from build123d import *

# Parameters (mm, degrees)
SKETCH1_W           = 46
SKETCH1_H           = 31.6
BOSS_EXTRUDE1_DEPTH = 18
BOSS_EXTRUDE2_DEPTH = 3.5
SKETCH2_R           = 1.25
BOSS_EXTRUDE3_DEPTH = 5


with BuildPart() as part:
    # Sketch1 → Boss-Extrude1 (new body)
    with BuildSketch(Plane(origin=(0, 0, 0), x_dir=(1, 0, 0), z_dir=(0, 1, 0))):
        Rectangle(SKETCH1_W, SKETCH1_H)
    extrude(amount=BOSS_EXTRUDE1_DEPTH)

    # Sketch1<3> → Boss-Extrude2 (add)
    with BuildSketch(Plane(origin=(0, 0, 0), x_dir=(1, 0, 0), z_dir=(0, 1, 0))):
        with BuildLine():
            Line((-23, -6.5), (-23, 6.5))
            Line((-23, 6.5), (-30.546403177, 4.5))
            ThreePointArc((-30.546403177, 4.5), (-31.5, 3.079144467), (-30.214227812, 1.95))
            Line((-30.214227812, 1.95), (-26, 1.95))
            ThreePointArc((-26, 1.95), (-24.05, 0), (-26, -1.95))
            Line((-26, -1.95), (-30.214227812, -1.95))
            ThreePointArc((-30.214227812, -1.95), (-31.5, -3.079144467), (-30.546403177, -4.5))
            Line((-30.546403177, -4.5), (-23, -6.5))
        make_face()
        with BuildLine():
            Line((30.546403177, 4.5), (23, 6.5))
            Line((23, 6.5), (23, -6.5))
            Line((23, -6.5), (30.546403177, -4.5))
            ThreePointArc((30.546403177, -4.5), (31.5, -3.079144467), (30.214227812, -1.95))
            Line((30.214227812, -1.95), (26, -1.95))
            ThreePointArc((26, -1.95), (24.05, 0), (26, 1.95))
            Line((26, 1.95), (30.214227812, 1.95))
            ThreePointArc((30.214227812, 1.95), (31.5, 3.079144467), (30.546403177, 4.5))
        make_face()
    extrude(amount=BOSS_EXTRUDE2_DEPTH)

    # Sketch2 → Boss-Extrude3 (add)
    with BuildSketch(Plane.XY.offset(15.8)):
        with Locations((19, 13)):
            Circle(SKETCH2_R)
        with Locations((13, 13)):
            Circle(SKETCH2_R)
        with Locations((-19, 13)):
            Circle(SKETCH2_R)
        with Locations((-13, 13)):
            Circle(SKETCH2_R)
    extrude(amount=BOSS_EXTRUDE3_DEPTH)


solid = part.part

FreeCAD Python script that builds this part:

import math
import FreeCAD as App
import Part
import Sketcher
from FreeCAD import Vector


def add_polygon(sketch, points):
    """Adds a closed chain of lines whose ends are joined by coincident constraints."""
    first, n = sketch.GeometryCount, len(points)
    for a, b in zip(points, points[1:] + points[:1]):
        sketch.addGeometry(Part.LineSegment(App.Vector(*a, 0), App.Vector(*b, 0)), False)
    for i in range(n):
        sketch.addConstraint(Sketcher.Constraint("Coincident", first + i, 2, first + (i + 1) % n, 1))

doc = App.newDocument("Part")
body = doc.addObject("PartDesign::Body", "Body")

sketch1 = body.newObject("Sketcher::SketchObject", "Sketch")
sketch1.AttachmentSupport = (doc.getObject("XZ_Plane"), [""])
sketch1.MapMode = "FlatFace"
add_polygon(sketch1, [(-23, -16), (-23, 16), (23, 16), (23, -16)])
sketch1.addConstraint(Sketcher.Constraint("Vertical", 0))
sketch1.addConstraint(Sketcher.Constraint("Horizontal", 1))
sketch1.addConstraint(Sketcher.Constraint("Vertical", 2))
sketch1.addConstraint(Sketcher.Constraint("Horizontal", 3))
sketch1.addConstraint(Sketcher.Constraint("Symmetric", 0, 2, 2, 2, -1, 1))
sketch1.addConstraint(Sketcher.Constraint("DistanceX", 1, 1, 1, 2, 46.0))
sketch1.addConstraint(Sketcher.Constraint("DistanceY", 0, 1, 0, 2, 31.6))
pad1 = body.newObject("PartDesign::Pad", "Pad")
pad1.Profile = sketch1
pad1.Length = 18
pad1.Reversed = True

sketch2 = body.newObject("Sketcher::SketchObject", "Sketch001")
sketch2.AttachmentSupport = (doc.getObject("XZ_Plane"), [""])
sketch2.MapMode = "FlatFace"
sketch2.addGeometry(Part.LineSegment(Vector(-23, 6.5, 0), Vector(-23, -6.5, 0)), False)
sketch2.addGeometry(Part.LineSegment(Vector(-23, -6.5, 0), Vector(-30.5, -4.5, 0)), False)
sketch2.addGeometry(Part.ArcOfCircle(Part.Circle(Vector(-30.2, -3.2, 0), Vector(0, 0, 1), 1.3), math.radians(90), math.radians(255)), False)
sketch2.addGeometry(Part.LineSegment(Vector(-30.2, -1.9, 0), Vector(-26, -1.9, 0)), False)
sketch2.addGeometry(Part.ArcOfCircle(Part.Circle(Vector(-26, 0, 0), Vector(0, 0, 1), 1.9), math.radians(-90), math.radians(90)), False)
sketch2.addGeometry(Part.LineSegment(Vector(-26, 1.9, 0), Vector(-30.2, 1.9, 0)), False)
sketch2.addGeometry(Part.ArcOfCircle(Part.Circle(Vector(-30.2, 3.2, 0), Vector(0, 0, 1), 1.3), math.radians(105), math.radians(270)), False)
sketch2.addGeometry(Part.LineSegment(Vector(-30.5, 4.5, 0), Vector(-23, 6.5, 0)), False)
sketch2.addGeometry(Part.LineSegment(Vector(30.5, -4.5, 0), Vector(23, -6.5, 0)), False)
sketch2.addGeometry(Part.LineSegment(Vector(23, -6.5, 0), Vector(23, 6.5, 0)), False)
sketch2.addGeometry(Part.LineSegment(Vector(23, 6.5, 0), Vector(30.5, 4.5, 0)), False)
sketch2.addGeometry(Part.ArcOfCircle(Part.Circle(Vector(30.2, 3.2, 0), Vector(0, 0, 1), 1.3), math.radians(-90), math.radians(75)), False)
sketch2.addGeometry(Part.LineSegment(Vector(30.2, 1.9, 0), Vector(26, 1.9, 0)), False)
sketch2.addGeometry(Part.ArcOfCircle(Part.Circle(Vector(26, 0, 0), Vector(0, 0, 1), 1.9), math.radians(90), math.radians(270)), False)
sketch2.addGeometry(Part.LineSegment(Vector(26, -1.9, 0), Vector(30.2, -1.9, 0)), False)
sketch2.addGeometry(Part.ArcOfCircle(Part.Circle(Vector(30.2, -3.2, 0), Vector(0, 0, 1), 1.3), math.radians(-75), math.radians(90)), False)
sketch2.addConstraint(Sketcher.Constraint("Coincident", 0, 2, 1, 1))
sketch2.addConstraint(Sketcher.Constraint("Tangent", 1, 2, 2, 2))
sketch2.addConstraint(Sketcher.Constraint("Tangent", 2, 1, 3, 1))
sketch2.addConstraint(Sketcher.Constraint("Tangent", 3, 2, 4, 1))
sketch2.addConstraint(Sketcher.Constraint("Tangent", 4, 2, 5, 1))
sketch2.addConstraint(Sketcher.Constraint("Tangent", 5, 2, 6, 2))
sketch2.addConstraint(Sketcher.Constraint("Tangent", 6, 1, 7, 1))
sketch2.addConstraint(Sketcher.Constraint("Coincident", 7, 2, 0, 1))
sketch2.addConstraint(Sketcher.Constraint("Coincident", 8, 2, 9, 1))
sketch2.addConstraint(Sketcher.Constraint("Coincident", 9, 2, 10, 1))
sketch2.addConstraint(Sketcher.Constraint("Tangent", 10, 2, 11, 2))
sketch2.addConstraint(Sketcher.Constraint("Tangent", 11, 1, 12, 1))
sketch2.addConstraint(Sketcher.Constraint("Tangent", 12, 2, 13, 1))
sketch2.addConstraint(Sketcher.Constraint("Tangent", 13, 2, 14, 1))
sketch2.addConstraint(Sketcher.Constraint("Tangent", 14, 2, 15, 2))
sketch2.addConstraint(Sketcher.Constraint("Tangent", 15, 1, 8, 1))
sketch2.addConstraint(Sketcher.Constraint("Vertical", 0))
sketch2.addConstraint(Sketcher.Constraint("Horizontal", 3))
sketch2.addConstraint(Sketcher.Constraint("Horizontal", 5))
sketch2.addConstraint(Sketcher.Constraint("Vertical", 9))
sketch2.addConstraint(Sketcher.Constraint("Horizontal", 12))
sketch2.addConstraint(Sketcher.Constraint("Horizontal", 14))
sketch2.addConstraint(Sketcher.Constraint("Equal", 2, 6))
sketch2.addConstraint(Sketcher.Constraint("Equal", 6, 11))
sketch2.addConstraint(Sketcher.Constraint("Equal", 4, 13))
sketch2.addConstraint(Sketcher.Constraint("Equal", 11, 15))
sketch2.addConstraint(Sketcher.Constraint("Symmetric", 2, 3, 11, 3, -1, 1))
sketch2.addConstraint(Sketcher.Constraint("Symmetric", 7, 2, 8, 2, -1, 1))
sketch2.addConstraint(Sketcher.Constraint("Symmetric", 6, 3, 11, 3, -2))
sketch2.addConstraint(Sketcher.Constraint("Symmetric", 1, 2, 15, 1, -2))
sketch2.addConstraint(Sketcher.Constraint("Parallel", 1, 10))
sketch2.addConstraint(Sketcher.Constraint("Equal", 5, 12))
sketch2.addConstraint(Sketcher.Constraint("DistanceY", 0, 2, 0, 1, 13.0))
sketch2.addConstraint(Sketcher.Constraint("Radius", 4, 1.95))
sketch2.addConstraint(Sketcher.Constraint("DistanceX", 4, 3, -1, 1, 26.0))
sketch2.addConstraint(Sketcher.Constraint("DistanceX", 0, 2, -1, 1, 23.0))
sketch2.addConstraint(Sketcher.Constraint("DistanceY", 0, 2, 1, 2, 2.0))
sketch2.addConstraint(Sketcher.Constraint("DistanceX", 3, 1, 3, 2, 4.214228))
pad2 = body.newObject("PartDesign::Pad", "Pad001")
pad2.Profile = sketch2
pad2.Length = 3.5
pad2.Reversed = True

sketch3 = body.newObject("Sketcher::SketchObject", "Sketch002")
sketch3.AttachmentSupport = (doc.getObject("XY_Plane"), [""])
sketch3.MapMode = "FlatFace"
sketch3.AttachmentOffset = App.Placement(Vector(0, 0, 15.8), App.Rotation())
sketch3.addGeometry(Part.Circle(Vector(19, 13, 0), Vector(0, 0, 1), 1.2), False)
sketch3.addGeometry(Part.Circle(Vector(13, 13, 0), Vector(0, 0, 1), 1.2), False)
sketch3.addGeometry(Part.Circle(Vector(-19, 13, 0), Vector(0, 0, 1), 1.2), False)
sketch3.addGeometry(Part.Circle(Vector(-13, 13, 0), Vector(0, 0, 1), 1.2), False)
sketch3.addConstraint(Sketcher.Constraint("Equal", 0, 1))
sketch3.addConstraint(Sketcher.Constraint("Equal", 1, 2))
sketch3.addConstraint(Sketcher.Constraint("Equal", 2, 3))
sketch3.addConstraint(Sketcher.Constraint("Symmetric", 0, 3, 2, 3, -2))
sketch3.addConstraint(Sketcher.Constraint("Symmetric", 1, 3, 3, 3, -2))
sketch3.addConstraint(Sketcher.Constraint("Horizontal", 0, 3, 1, 3))
sketch3.addConstraint(Sketcher.Constraint("Diameter", 0, 2.5))
sketch3.addConstraint(Sketcher.Constraint("DistanceX", -1, 1, 0, 3, 19.0))
sketch3.addConstraint(Sketcher.Constraint("DistanceY", -1, 1, 0, 3, 13.0))
sketch3.addConstraint(Sketcher.Constraint("DistanceX", -1, 1, 1, 3, 13.0))
pad3 = body.newObject("PartDesign::Pad", "Pad002")
pad3.Profile = sketch3
pad3.Length = 5

doc.recompute()
